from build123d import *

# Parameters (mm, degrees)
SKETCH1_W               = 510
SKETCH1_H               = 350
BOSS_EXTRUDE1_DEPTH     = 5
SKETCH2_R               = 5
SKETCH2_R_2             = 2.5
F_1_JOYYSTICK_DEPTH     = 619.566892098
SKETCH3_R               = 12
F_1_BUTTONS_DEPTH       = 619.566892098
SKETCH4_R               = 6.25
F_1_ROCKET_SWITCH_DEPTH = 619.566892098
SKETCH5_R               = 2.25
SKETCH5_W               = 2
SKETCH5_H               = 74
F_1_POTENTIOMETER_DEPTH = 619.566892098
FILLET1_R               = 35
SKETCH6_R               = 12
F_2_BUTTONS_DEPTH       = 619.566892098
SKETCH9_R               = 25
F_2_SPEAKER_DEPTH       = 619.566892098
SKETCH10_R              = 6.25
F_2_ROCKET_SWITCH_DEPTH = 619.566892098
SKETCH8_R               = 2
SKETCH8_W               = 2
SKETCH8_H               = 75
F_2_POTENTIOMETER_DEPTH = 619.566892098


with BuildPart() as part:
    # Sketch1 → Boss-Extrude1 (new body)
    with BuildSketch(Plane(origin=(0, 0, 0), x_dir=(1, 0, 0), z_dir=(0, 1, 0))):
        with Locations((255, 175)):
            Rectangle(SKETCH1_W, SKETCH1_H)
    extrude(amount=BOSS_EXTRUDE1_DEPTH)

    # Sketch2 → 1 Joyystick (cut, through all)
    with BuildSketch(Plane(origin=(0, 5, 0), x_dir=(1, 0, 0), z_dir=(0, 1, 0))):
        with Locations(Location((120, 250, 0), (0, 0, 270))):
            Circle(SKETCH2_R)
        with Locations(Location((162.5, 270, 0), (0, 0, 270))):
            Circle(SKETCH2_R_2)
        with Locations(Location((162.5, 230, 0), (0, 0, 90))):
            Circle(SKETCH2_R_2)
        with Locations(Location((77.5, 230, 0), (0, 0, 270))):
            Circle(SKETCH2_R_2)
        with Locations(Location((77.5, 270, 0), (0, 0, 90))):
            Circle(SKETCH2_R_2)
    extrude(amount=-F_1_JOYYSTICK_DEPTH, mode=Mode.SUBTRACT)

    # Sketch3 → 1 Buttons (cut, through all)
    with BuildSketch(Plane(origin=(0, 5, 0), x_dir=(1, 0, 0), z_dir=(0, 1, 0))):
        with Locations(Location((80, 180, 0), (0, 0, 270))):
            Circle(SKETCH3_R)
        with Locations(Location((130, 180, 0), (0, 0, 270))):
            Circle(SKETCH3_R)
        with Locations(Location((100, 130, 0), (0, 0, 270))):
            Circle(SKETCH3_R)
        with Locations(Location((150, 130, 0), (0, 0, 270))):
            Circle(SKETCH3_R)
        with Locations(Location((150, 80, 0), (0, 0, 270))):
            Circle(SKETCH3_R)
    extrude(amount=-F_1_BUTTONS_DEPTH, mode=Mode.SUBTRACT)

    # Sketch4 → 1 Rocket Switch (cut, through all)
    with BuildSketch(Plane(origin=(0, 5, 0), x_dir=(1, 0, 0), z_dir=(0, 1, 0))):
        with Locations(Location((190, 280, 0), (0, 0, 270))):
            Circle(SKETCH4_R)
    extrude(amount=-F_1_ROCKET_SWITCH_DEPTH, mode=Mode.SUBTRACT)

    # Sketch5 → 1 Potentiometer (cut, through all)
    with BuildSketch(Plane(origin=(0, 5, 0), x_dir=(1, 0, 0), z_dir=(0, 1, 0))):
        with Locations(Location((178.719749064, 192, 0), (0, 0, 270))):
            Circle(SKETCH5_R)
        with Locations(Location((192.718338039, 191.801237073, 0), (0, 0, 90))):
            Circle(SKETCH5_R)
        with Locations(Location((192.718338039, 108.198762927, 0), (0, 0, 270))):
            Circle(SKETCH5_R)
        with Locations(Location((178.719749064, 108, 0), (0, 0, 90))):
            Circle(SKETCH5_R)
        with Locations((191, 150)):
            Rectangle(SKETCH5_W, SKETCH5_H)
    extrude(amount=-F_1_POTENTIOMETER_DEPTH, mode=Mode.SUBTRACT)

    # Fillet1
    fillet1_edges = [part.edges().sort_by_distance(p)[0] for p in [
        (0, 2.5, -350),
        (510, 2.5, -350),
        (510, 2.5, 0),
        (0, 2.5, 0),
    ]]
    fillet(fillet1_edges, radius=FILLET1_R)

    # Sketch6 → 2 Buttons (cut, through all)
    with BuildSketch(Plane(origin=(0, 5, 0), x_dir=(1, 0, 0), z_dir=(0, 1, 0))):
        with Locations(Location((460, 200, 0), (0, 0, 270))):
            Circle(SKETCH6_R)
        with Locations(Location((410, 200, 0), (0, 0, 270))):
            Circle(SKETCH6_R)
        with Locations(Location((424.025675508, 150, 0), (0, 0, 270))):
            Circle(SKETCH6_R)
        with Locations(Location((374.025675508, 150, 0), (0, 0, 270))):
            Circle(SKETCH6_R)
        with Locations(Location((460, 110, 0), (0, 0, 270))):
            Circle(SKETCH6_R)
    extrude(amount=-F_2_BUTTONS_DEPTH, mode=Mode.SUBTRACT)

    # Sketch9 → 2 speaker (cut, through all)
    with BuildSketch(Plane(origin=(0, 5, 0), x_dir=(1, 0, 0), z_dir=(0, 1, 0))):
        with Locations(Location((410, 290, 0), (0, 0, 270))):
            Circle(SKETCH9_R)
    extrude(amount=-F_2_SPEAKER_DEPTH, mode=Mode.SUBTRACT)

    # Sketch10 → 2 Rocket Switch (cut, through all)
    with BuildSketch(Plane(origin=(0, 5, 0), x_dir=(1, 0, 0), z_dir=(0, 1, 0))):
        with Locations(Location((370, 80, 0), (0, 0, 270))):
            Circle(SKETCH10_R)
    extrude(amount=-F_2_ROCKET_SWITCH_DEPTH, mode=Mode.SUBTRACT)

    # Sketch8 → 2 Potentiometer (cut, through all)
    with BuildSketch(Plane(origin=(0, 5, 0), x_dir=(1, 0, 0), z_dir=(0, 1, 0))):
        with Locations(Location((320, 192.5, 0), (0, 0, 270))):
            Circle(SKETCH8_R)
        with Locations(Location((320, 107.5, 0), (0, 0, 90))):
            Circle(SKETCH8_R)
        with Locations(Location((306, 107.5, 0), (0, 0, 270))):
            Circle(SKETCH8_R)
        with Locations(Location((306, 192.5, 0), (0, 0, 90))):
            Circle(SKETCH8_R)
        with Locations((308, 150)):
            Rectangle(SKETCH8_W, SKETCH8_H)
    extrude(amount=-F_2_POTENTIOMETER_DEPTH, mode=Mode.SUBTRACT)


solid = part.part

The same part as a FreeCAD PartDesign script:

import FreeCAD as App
import Part
import Sketcher
from FreeCAD import Vector


def edges_at(feature, points):
    """Names of the edges that pass closest to the given points."""
    edges = feature.Shape.Edges
    near = lambda p: min(range(len(edges)), key=lambda i: edges[i].distToShape(Part.Vertex(*p))[0])
    return sorted({f"Edge{near(p) + 1}" for p in points})

doc = App.newDocument("Part")
body = doc.addObject("PartDesign::Body", "Body")

sketch1 = body.newObject("Sketcher::SketchObject", "Sketch")
sketch1.AttachmentSupport = (doc.getObject("XZ_Plane"), [""])
sketch1.MapMode = "FlatFace"
sketch1.addGeometry(Part.LineSegment(Vector(0, -350, 0), Vector(0, 0, 0)), False)
sketch1.addGeometry(Part.LineSegment(Vector(0, 0, 0), Vector(510, 0, 0)), False)
sketch1.addGeometry(Part.LineSegment(Vector(510, 0, 0), Vector(510, -350, 0)), False)
sketch1.addGeometry(Part.LineSegment(Vector(510, -350, 0), Vector(0, -350, 0)), False)
sketch1.addConstraint(Sketcher.Constraint("Coincident", 0, 2, 1, 1))
sketch1.addConstraint(Sketcher.Constraint("Coincident", 1, 2, 2, 1))
sketch1.addConstraint(Sketcher.Constraint("Coincident", 2, 2, 3, 1))
sketch1.addConstraint(Sketcher.Constraint("Coincident", 3, 2, 0, 1))
sketch1.addConstraint(Sketcher.Constraint("Vertical", 0))
sketch1.addConstraint(Sketcher.Constraint("Horizontal", 1))
sketch1.addConstraint(Sketcher.Constraint("Vertical", 2))
sketch1.addConstraint(Sketcher.Constraint("Horizontal", 3))
sketch1.addConstraint(Sketcher.Constraint("Coincident", 0, 2, -1, 1))
sketch1.addConstraint(Sketcher.Constraint("DistanceX", 1, 1, 1, 2, 510.0))
sketch1.addConstraint(Sketcher.Constraint("DistanceY", 0, 1, 0, 2, 350.0))
pad1 = body.newObject("PartDesign::Pad", "Pad")
pad1.Profile = sketch1
pad1.Length = 5
pad1.Reversed = True

sketch2 = body.newObject("Sketcher::SketchObject", "Sketch001")
sketch2.AttachmentSupport = (doc.getObject("XZ_Plane"), [""])
sketch2.MapMode = "FlatFace"
sketch2.AttachmentOffset = App.Placement(Vector(0, 0, -5), App.Rotation())
sketch2.addGeometry(Part.Circle(Vector(120, -250, 0), Vector(0, 0, 1), 5), False)
sketch2.addGeometry(Part.Circle(Vector(162.5, -270, 0), Vector(0, 0, 1), 2.5), False)
sketch2.addGeometry(Part.Circle(Vector(162.5, -230, 0), Vector(0, 0, 1), 2.5), False)
sketch2.addGeometry(Part.Circle(Vector(77.5, -230, 0), Vector(0, 0, 1), 2.5), False)
sketch2.addGeometry(Part.Circle(Vector(77.5, -270, 0), Vector(0, 0, 1), 2.5), False)
sketch2.addConstraint(Sketcher.Constraint("Equal", 1, 2))
sketch2.addConstraint(Sketcher.Constraint("Equal", 2, 3))
sketch2.addConstraint(Sketcher.Constraint("Equal", 3, 4))
sketch2.addConstraint(Sketcher.Constraint("Horizontal", 2, 3, 3, 3))
sketch2.addConstraint(Sketcher.Constraint("Horizontal", 1, 3, 4, 3))
sketch2.addConstraint(Sketcher.Constraint("Vertical", 1, 3, 2, 3))
sketch2.addConstraint(Sketcher.Constraint("Vertical", 3, 3, 4, 3))
sketch2.addConstraint(Sketcher.Constraint("Diameter", 0, 10.0))
sketch2.addConstraint(Sketcher.Constraint("Diameter", 1, 5.0))
sketch2.addConstraint(Sketcher.Constraint("DistanceX", -1, 1, 0, 3, 120.0))
sketch2.addConstraint(Sketcher.Constraint("DistanceY", 0, 3, -1, 1, 250.0))
sketch2.addConstraint(Sketcher.Constraint("DistanceY", 1, 3, -1, 1, 270.0))
sketch2.addConstraint(Sketcher.Constraint("DistanceY", 2, 3, -1, 1, 230.0))
sketch2.addConstraint(Sketcher.Constraint("DistanceX", 3, 3, 2, 3, 85.0))
sketch2.addConstraint(Sketcher.Constraint("DistanceX", -1, 1, 1, 3, 162.5))
pocket1 = body.newObject("PartDesign::Pocket", "Pocket")
pocket1.Profile = sketch2
pocket1.Type = "ThroughAll"
pocket1.Reversed = True

sketch3 = body.newObject("Sketcher::SketchObject", "Sketch002")
sketch3.AttachmentSupport = (doc.getObject("XZ_Plane"), [""])
sketch3.MapMode = "FlatFace"
sketch3.AttachmentOffset = App.Placement(Vector(0, 0, -5), App.Rotation())
sketch3.addGeometry(Part.Circle(Vector(80, -180, 0), Vector(0, 0, 1), 12), False)
sketch3.addGeometry(Part.Circle(Vector(130, -180, 0), Vector(0, 0, 1), 12), False)
sketch3.addGeometry(Part.Circle(Vector(100, -130, 0), Vector(0, 0, 1), 12), False)
sketch3.addGeometry(Part.Circle(Vector(150, -130, 0), Vector(0, 0, 1), 12), False)
sketch3.addGeometry(Part.Circle(Vector(150, -80, 0), Vector(0, 0, 1), 12), False)
sketch3.addConstraint(Sketcher.Constraint("Equal", 0, 1))
sketch3.addConstraint(Sketcher.Constraint("Equal", 1, 2))
sketch3.addConstraint(Sketcher.Constraint("Equal", 2, 3))
sketch3.addConstraint(Sketcher.Constraint("Equal", 3, 4))
sketch3.addConstraint(Sketcher.Constraint("Horizontal", 0, 3, 1, 3))
sketch3.addConstraint(Sketcher.Constraint("Horizontal", 2, 3, 3, 3))
sketch3.addConstraint(Sketcher.Constraint("Vertical", 3, 3, 4, 3))
sketch3.addConstraint(Sketcher.Constraint("Diameter", 0, 24.0))
sketch3.addConstraint(Sketcher.Constraint("DistanceX", -1, 1, 0, 3, 80.0))
sketch3.addConstraint(Sketcher.Constraint("DistanceY", 0, 3, -1, 1, 180.0))
sketch3.addConstraint(Sketcher.Constraint("DistanceX", -1, 1, 1, 3, 130.0))
sketch3.addConstraint(Sketcher.Constraint("DistanceX", -1, 1, 2, 3, 100.0))
sketch3.addConstraint(Sketcher.Constraint("DistanceY", 2, 3, -1, 1, 130.0))
sketch3.addConstraint(Sketcher.Constraint("DistanceX", -1, 1, 3, 3, 150.0))
sketch3.addConstraint(Sketcher.Constraint("DistanceY", 4, 3, -1, 1, 80.0))
pocket2 = body.newObject("PartDesign::Pocket", "Pocket001")
pocket2.Profile = sketch3
pocket2.Type = "ThroughAll"
pocket2.Reversed = True

sketch4 = body.newObject("Sketcher::SketchObject", "Sketch003")
sketch4.AttachmentSupport = (doc.getObject("XZ_Plane"), [""])
sketch4.MapMode = "FlatFace"
sketch4.AttachmentOffset = App.Placement(Vector(0, 0, -5), App.Rotation())
sketch4.addGeometry(Part.Circle(Vector(190, -280, 0), Vector(0, 0, 1), 6), False)
sketch4.addConstraint(Sketcher.Constraint("Diameter", 0, 12.5))
sketch4.addConstraint(Sketcher.Constraint("DistanceX", -1, 1, 0, 3, 190.0))
sketch4.addConstraint(Sketcher.Constraint("DistanceY", 0, 3, -1, 1, 280.0))
pocket3 = body.newObject("PartDesign::Pocket", "Pocket002")
pocket3.Profile = sketch4
pocket3.Type = "ThroughAll"
pocket3.Reversed = True

sketch5 = body.newObject("Sketcher::SketchObject", "Sketch004")
sketch5.AttachmentSupport = (doc.getObject("XZ_Plane"), [""])
sketch5.MapMode = "FlatFace"
sketch5.AttachmentOffset = App.Placement(Vector(0, 0, -5), App.Rotation())
sketch5.addGeometry(Part.Circle(Vector(178.7, -192, 0), Vector(0, 0, 1), 2.2), False)
sketch5.addGeometry(Part.Circle(Vector(192.7, -191.8, 0), Vector(0, 0, 1), 2.2), False)
sketch5.addGeometry(Part.Circle(Vector(192.7, -108.2, 0), Vector(0, 0, 1), 2.2), False)
sketch5.addGeometry(Part.Circle(Vector(178.7, -108, 0), Vector(0, 0, 1), 2.2), False)
sketch5.addGeometry(Part.LineSegment(Vector(190, -187, 0), Vector(190, -113, 0)), False)
sketch5.addGeometry(Part.LineSegment(Vector(190, -113, 0), Vector(192, -113, 0)), False)
sketch5.addGeometry(Part.LineSegment(Vector(192, -113, 0), Vector(192, -187, 0)), False)
sketch5.addGeometry(Part.LineSegment(Vector(192, -187, 0), Vector(190, -187, 0)), False)
sketch5.addConstraint(Sketcher.Constraint("Coincident", 4, 2, 5, 1))
sketch5.addConstraint(Sketcher.Constraint("Coincident", 5, 2, 6, 1))
sketch5.addConstraint(Sketcher.Constraint("Coincident", 6, 2, 7, 1))
sketch5.addConstraint(Sketcher.Constraint("Coincident", 7, 2, 4, 1))
sketch5.addConstraint(Sketcher.Constraint("Vertical", 4))
sketch5.addConstraint(Sketcher.Constraint("Horizontal", 5))
sketch5.addConstraint(Sketcher.Constraint("Vertical", 6))
sketch5.addConstraint(Sketcher.Constraint("Horizontal", 7))
sketch5.addConstraint(Sketcher.Constraint("Equal", 0, 1))
sketch5.addConstraint(Sketcher.Constraint("Equal", 1, 2))
sketch5.addConstraint(Sketcher.Constraint("Equal", 2, 3))
sketch5.addConstraint(Sketcher.Constraint("Vertical", 1, 3, 2, 3))
sketch5.addConstraint(Sketcher.Constraint("Vertical", 0, 3, 3, 3))
sketch5.addConstraint(Sketcher.Constraint("Diameter", 0, 4.5))
sketch5.addConstraint(Sketcher.Constraint("DistanceX", 5, 1, 5, 2, 2.0))
sketch5.addConstraint(Sketcher.Constraint("DistanceY", 4, 1, 4, 2, 74.0))
sketch5.addConstraint(Sketcher.Constraint("DistanceY", 0, 3, -1, 1, 192.0))
sketch5.addConstraint(Sketcher.Constraint("DistanceY", 3, 3, -1, 1, 108.0))
sketch5.addConstraint(Sketcher.Constraint("DistanceX", -1, 1, 4, 2, 190.0))
sketch5.addConstraint(Sketcher.Constraint("DistanceY", 4, 2, -1, 1, 113.0))
sketch5.addConstraint(Sketcher.Constraint("DistanceX", -1, 1, 0, 3, 178.719749))
sketch5.addConstraint(Sketcher.Constraint("DistanceX", -1, 1, 1, 3, 192.718338))
sketch5.addConstraint(Sketcher.Constraint("DistanceY", 1, 3, -1, 1, 191.801237))
sketch5.addConstraint(Sketcher.Constraint("DistanceY", 2, 3, -1, 1, 108.198763))
pocket4 = body.newObject("PartDesign::Pocket", "Pocket003")
pocket4.Profile = sketch5
pocket4.Type = "ThroughAll"
pocket4.Reversed = True
doc.recompute()

fillet = body.newObject("PartDesign::Fillet", "Fillet")
fillet.Base = (pocket4, edges_at(pocket4, [
    (0, 2.5, -350),
    (510, 2.5, -350),
    (510, 2.5, 0),
    (0, 2.5, 0),
]))
fillet.Radius = 35

sketch6 = body.newObject("Sketcher::SketchObject", "Sketch005")
sketch6.AttachmentSupport = (doc.getObject("XZ_Plane"), [""])
sketch6.MapMode = "FlatFace"
sketch6.AttachmentOffset = App.Placement(Vector(0, 0, -5), App.Rotation())
sketch6.addGeometry(Part.Circle(Vector(460, -200, 0), Vector(0, 0, 1), 12), False)
sketch6.addGeometry(Part.Circle(Vector(410, -200, 0), Vector(0, 0, 1), 12), False)
sketch6.addGeometry(Part.Circle(Vector(424, -150, 0), Vector(0, 0, 1), 12), False)
sketch6.addGeometry(Part.Circle(Vector(374, -150, 0), Vector(0, 0, 1), 12), False)
sketch6.addGeometry(Part.Circle(Vector(460, -110, 0), Vector(0, 0, 1), 12), False)
sketch6.addConstraint(Sketcher.Constraint("Equal", 0, 1))
sketch6.addConstraint(Sketcher.Constraint("Equal", 1, 2))
sketch6.addConstraint(Sketcher.Constraint("Equal", 2, 3))
sketch6.addConstraint(Sketcher.Constraint("Equal", 3, 4))
sketch6.addConstraint(Sketcher.Constraint("Horizontal", 0, 3, 1, 3))
sketch6.addConstraint(Sketcher.Constraint("Horizontal", 2, 3, 3, 3))
sketch6.addConstraint(Sketcher.Constraint("Vertical", 0, 3, 4, 3))
sketch6.addConstraint(Sketcher.Constraint("Diameter", 0, 24.0))
sketch6.addConstraint(Sketcher.Constraint("DistanceX", -1, 1, 0, 3, 460.0))
sketch6.addConstraint(Sketcher.Constraint("DistanceY", 0, 3, -1, 1, 200.0))
sketch6.addConstraint(Sketcher.Constraint("DistanceX", -1, 1, 1, 3, 410.0))
sketch6.addConstraint(Sketcher.Constraint("DistanceY", 2, 3, -1, 1, 150.0))
sketch6.addConstraint(Sketcher.Constraint("DistanceY", 4, 3, -1, 1, 110.0))
sketch6.addConstraint(Sketcher.Constraint("DistanceX", 3, 3, 2, 3, 50.0))
sketch6.addConstraint(Sketcher.Constraint("DistanceX", -1, 1, 2, 3, 424.025676))
pocket5 = body.newObject("PartDesign::Pocket", "Pocket004")
pocket5.Profile = sketch6
pocket5.Type = "ThroughAll"
pocket5.Reversed = True

sketch7 = body.newObject("Sketcher::SketchObject", "Sketch006")
sketch7.AttachmentSupport = (doc.getObject("XZ_Plane"), [""])
sketch7.MapMode = "FlatFace"
sketch7.AttachmentOffset = App.Placement(Vector(0, 0, -5), App.Rotation())
sketch7.addGeometry(Part.Circle(Vector(410, -290, 0), Vector(0, 0, 1), 25), False)
sketch7.addConstraint(Sketcher.Constraint("Diameter", 0, 50.0))
sketch7.addConstraint(Sketcher.Constraint("DistanceX", -1, 1, 0, 3, 410.0))
sketch7.addConstraint(Sketcher.Constraint("DistanceY", 0, 3, -1, 1, 290.0))
pocket6 = body.newObject("PartDesign::Pocket", "Pocket005")
pocket6.Profile = sketch7
pocket6.Type = "ThroughAll"
pocket6.Reversed = True

sketch8 = body.newObject("Sketcher::SketchObject", "Sketch007")
sketch8.AttachmentSupport = (doc.getObject("XZ_Plane"), [""])
sketch8.MapMode = "FlatFace"
sketch8.AttachmentOffset = App.Placement(Vector(0, 0, -5), App.Rotation())
sketch8.addGeometry(Part.Circle(Vector(370, -80, 0), Vector(0, 0, 1), 6), False)
sketch8.addConstraint(Sketcher.Constraint("Diameter", 0, 12.5))
sketch8.addConstraint(Sketcher.Constraint("DistanceX", -1, 1, 0, 3, 370.0))
sketch8.addConstraint(Sketcher.Constraint("DistanceY", 0, 3, -1, 1, 80.0))
pocket7 = body.newObject("PartDesign::Pocket", "Pocket006")
pocket7.Profile = sketch8
pocket7.Type = "ThroughAll"
pocket7.Reversed = True

sketch9 = body.newObject("Sketcher::SketchObject", "Sketch008")
sketch9.AttachmentSupport = (doc.getObject("XZ_Plane"), [""])
sketch9.MapMode = "FlatFace"
sketch9.AttachmentOffset = App.Placement(Vector(0, 0, -5), App.Rotation())
sketch9.addGeometry(Part.Circle(Vector(320, -192.5, 0), Vector(0, 0, 1), 2), False)
sketch9.addGeometry(Part.Circle(Vector(320, -107.5, 0), Vector(0, 0, 1), 2), False)
sketch9.addGeometry(Part.Circle(Vector(306, -107.5, 0), Vector(0, 0, 1), 2), False)
sketch9.addGeometry(Part.Circle(Vector(306, -192.5, 0), Vector(0, 0, 1), 2), False)
sketch9.addGeometry(Part.LineSegment(Vector(307, -187.5, 0), Vector(307, -112.5, 0)), False)
sketch9.addGeometry(Part.LineSegment(Vector(307, -112.5, 0), Vector(309, -112.5, 0)), False)
sketch9.addGeometry(Part.LineSegment(Vector(309, -112.5, 0), Vector(309, -187.5, 0)), False)
sketch9.addGeometry(Part.LineSegment(Vector(309, -187.5, 0), Vector(307, -187.5, 0)), False)
sketch9.addConstraint(Sketcher.Constraint("Coincident", 4, 2, 5, 1))
sketch9.addConstraint(Sketcher.Constraint("Coincident", 5, 2, 6, 1))
sketch9.addConstraint(Sketcher.Constraint("Coincident", 6, 2, 7, 1))
sketch9.addConstraint(Sketcher.Constraint("Coincident", 7, 2, 4, 1))
sketch9.addConstraint(Sketcher.Constraint("Vertical", 4))
sketch9.addConstraint(Sketcher.Constraint("Horizontal", 5))
sketch9.addConstraint(Sketcher.Constraint("Vertical", 6))
sketch9.addConstraint(Sketcher.Constraint("Horizontal", 7))
sketch9.addConstraint(Sketcher.Constraint("Equal", 0, 1))
sketch9.addConstraint(Sketcher.Constraint("Equal", 1, 2))
sketch9.addConstraint(Sketcher.Constraint("Equal", 2, 3))
sketch9.addConstraint(Sketcher.Constraint("Horizontal", 1, 3, 2, 3))
sketch9.addConstraint(Sketcher.Constraint("Horizontal", 0, 3, 3, 3))
sketch9.addConstraint(Sketcher.Constraint("Vertical", 0, 3, 1, 3))
sketch9.addConstraint(Sketcher.Constraint("Vertical", 2, 3, 3, 3))
sketch9.addConstraint(Sketcher.Constraint("Diameter", 0, 4.0))
sketch9.addConstraint(Sketcher.Constraint("DistanceX", 5, 1, 5, 2, 2.0))
sketch9.addConstraint(Sketcher.Constraint("DistanceY", 4, 1, 4, 2, 75.0))
sketch9.addConstraint(Sketcher.Constraint("DistanceX", -1, 1, 0, 3, 320.0))
sketch9.addConstraint(Sketcher.Constraint("DistanceX", -1, 1, 2, 3, 306.0))
sketch9.addConstraint(Sketcher.Constraint("DistanceX", -1, 1, 4, 2, 307.0))
sketch9.addConstraint(Sketcher.Constraint("DistanceY", 0, 3, 1, 3, 85.0))
sketch9.addConstraint(Sketcher.Constraint("DistanceY", 4, 2, 2, 3, 5.0))
sketch9.addConstraint(Sketcher.Constraint("DistanceY", 0, 3, -1, 1, 192.5))
pocket8 = body.newObject("PartDesign::Pocket", "Pocket007")
pocket8.Profile = sketch9
pocket8.Type = "ThroughAll"
pocket8.Reversed = True

doc.recompute()
